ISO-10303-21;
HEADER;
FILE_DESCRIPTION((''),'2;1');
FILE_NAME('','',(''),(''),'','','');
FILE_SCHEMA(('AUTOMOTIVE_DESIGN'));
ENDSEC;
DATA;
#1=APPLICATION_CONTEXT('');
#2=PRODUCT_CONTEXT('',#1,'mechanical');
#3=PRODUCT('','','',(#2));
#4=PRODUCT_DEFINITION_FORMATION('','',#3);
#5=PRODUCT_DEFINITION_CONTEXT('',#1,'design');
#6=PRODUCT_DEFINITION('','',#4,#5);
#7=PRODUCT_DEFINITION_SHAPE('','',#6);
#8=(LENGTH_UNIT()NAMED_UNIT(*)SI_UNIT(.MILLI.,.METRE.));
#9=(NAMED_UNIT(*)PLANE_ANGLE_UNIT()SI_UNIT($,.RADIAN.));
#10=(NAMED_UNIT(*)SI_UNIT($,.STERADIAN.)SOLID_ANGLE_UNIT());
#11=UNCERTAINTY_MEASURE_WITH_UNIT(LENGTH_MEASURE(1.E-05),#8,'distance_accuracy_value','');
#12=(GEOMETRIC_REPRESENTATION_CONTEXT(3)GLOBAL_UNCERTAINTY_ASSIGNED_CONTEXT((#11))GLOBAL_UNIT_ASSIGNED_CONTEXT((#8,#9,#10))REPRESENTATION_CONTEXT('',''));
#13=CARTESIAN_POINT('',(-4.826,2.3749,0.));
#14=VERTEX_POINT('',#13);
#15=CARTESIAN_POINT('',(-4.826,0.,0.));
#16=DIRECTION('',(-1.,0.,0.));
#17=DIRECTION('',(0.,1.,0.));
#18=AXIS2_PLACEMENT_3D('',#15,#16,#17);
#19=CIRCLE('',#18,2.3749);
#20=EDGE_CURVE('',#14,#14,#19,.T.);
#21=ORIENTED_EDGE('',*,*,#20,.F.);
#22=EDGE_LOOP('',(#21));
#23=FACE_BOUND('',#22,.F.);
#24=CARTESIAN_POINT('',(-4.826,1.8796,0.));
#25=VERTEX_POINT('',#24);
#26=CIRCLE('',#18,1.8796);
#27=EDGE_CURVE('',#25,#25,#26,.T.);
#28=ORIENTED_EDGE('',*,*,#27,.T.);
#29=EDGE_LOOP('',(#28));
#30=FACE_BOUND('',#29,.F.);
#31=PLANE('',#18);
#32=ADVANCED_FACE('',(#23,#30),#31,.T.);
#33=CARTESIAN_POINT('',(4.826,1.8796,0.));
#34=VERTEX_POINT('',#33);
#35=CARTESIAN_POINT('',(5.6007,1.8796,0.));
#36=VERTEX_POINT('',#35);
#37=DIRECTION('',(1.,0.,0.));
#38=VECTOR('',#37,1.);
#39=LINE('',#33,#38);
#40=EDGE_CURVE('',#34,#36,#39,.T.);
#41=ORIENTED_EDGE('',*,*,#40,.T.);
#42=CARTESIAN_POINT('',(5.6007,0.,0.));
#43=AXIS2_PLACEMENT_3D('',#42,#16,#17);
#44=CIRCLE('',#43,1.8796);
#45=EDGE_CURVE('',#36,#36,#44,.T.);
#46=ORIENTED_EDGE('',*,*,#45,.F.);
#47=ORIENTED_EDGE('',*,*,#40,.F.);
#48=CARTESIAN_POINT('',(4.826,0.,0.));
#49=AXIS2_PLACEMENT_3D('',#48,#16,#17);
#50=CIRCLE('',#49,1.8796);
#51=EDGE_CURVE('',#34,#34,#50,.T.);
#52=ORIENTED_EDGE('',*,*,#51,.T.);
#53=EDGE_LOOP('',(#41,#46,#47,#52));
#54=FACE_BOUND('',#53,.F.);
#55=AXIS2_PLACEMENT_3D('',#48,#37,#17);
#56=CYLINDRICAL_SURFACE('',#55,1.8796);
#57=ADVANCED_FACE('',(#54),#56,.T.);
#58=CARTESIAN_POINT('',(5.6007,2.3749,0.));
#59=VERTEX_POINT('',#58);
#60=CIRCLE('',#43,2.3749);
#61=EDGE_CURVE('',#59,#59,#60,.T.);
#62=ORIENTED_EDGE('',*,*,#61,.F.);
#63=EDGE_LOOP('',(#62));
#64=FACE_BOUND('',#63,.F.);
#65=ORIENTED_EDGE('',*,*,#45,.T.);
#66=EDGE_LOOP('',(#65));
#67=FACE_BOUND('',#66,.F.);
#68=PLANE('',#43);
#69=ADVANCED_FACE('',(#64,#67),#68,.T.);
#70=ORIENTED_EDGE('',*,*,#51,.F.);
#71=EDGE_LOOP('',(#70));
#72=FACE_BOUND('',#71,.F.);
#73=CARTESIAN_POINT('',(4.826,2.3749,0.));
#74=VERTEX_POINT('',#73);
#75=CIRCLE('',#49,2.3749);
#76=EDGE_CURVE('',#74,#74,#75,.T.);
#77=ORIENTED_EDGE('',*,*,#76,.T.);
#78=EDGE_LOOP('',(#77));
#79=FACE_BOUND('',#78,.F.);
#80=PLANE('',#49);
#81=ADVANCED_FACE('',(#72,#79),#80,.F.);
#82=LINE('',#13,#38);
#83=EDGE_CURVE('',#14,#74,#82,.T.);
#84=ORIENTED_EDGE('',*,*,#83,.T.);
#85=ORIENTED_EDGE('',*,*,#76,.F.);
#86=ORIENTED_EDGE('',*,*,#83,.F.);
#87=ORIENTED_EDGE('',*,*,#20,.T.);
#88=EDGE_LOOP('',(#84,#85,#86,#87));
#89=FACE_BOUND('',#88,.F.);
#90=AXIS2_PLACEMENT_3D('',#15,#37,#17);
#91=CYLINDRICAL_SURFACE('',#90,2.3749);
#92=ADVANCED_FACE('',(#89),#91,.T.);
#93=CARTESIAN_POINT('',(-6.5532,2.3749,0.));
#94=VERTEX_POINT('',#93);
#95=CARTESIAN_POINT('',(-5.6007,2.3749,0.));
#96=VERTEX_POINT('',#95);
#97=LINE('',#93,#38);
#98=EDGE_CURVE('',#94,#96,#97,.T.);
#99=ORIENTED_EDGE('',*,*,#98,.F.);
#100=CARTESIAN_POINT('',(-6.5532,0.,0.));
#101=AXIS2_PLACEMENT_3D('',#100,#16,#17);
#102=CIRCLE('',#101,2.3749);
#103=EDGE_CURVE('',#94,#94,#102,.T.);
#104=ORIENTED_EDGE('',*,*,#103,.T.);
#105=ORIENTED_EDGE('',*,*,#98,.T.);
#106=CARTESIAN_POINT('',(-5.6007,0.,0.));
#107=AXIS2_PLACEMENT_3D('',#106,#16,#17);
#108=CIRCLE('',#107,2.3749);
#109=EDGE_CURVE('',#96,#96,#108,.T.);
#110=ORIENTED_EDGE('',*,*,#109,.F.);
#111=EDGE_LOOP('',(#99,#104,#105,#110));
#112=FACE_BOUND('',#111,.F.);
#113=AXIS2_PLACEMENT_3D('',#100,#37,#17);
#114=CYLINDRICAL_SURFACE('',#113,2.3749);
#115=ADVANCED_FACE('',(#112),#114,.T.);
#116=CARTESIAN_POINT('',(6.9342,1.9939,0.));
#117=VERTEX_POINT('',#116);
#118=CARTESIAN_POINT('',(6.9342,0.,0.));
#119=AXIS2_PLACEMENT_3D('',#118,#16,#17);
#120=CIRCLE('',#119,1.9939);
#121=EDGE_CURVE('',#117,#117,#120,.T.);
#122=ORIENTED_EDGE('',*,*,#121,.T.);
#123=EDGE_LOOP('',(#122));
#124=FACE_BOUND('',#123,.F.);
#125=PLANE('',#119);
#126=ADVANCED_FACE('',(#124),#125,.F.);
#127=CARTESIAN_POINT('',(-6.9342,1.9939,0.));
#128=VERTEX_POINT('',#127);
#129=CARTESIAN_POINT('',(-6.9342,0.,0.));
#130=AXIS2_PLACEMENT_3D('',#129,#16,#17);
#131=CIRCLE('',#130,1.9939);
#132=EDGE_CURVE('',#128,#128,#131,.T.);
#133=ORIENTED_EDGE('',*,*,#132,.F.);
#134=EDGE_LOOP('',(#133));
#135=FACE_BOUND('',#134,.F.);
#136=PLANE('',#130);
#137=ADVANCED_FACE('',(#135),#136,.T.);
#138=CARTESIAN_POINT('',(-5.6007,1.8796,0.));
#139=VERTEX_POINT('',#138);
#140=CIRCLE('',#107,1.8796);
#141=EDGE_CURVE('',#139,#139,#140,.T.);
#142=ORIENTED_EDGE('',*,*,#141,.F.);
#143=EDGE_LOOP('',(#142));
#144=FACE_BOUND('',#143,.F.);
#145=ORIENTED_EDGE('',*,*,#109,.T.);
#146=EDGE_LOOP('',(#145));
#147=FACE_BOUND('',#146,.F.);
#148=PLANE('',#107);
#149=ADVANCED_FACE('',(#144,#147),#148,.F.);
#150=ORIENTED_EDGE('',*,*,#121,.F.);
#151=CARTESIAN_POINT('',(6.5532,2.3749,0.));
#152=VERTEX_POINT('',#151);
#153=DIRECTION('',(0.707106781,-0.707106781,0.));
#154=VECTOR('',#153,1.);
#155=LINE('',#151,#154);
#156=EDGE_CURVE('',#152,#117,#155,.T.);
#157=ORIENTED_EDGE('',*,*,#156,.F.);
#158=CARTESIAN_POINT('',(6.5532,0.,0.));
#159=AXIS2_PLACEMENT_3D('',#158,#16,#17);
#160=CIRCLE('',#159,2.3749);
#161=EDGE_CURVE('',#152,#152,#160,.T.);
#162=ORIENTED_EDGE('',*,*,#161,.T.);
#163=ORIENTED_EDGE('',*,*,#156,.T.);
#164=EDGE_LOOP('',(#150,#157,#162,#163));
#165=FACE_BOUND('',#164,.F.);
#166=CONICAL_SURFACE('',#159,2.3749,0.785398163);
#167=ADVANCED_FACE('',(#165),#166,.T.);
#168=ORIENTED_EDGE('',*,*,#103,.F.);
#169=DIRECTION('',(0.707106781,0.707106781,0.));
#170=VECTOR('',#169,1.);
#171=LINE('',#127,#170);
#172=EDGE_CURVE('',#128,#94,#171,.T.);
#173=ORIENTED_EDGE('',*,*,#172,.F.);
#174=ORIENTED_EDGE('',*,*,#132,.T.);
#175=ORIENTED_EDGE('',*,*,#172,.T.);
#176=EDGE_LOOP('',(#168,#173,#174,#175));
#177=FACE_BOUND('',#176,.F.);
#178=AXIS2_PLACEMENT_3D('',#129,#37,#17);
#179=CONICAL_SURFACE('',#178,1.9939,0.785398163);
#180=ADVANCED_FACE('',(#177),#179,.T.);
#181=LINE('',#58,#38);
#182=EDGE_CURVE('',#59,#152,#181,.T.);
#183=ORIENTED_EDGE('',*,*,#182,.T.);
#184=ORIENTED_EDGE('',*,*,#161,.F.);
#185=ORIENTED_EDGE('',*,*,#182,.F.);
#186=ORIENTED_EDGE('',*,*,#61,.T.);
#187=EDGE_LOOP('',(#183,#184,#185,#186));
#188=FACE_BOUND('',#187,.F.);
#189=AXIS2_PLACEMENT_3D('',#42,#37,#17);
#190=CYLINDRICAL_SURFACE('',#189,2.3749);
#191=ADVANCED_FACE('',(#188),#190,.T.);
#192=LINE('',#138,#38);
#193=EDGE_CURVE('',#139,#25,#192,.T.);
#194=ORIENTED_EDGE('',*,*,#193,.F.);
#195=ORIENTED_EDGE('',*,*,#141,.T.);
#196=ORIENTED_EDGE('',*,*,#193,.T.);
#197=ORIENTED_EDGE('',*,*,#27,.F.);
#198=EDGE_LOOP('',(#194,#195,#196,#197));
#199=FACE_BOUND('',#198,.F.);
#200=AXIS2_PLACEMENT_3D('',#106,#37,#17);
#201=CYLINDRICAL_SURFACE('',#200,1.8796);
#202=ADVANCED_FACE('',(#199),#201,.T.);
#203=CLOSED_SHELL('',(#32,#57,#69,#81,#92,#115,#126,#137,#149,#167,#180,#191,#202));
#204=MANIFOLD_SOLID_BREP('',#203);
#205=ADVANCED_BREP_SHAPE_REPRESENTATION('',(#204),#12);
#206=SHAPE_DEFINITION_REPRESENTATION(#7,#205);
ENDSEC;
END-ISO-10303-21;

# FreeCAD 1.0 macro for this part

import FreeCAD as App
import Part
import Sketcher

V = App.Vector
Q = App.Units.Quantity

doc = App.newDocument("Part")
body = doc.addObject("PartDesign::Body", "Body")

# Sketch on XY plane
sketch1 = body.newObject("Sketcher::SketchObject", "Sketch")
sketch1.AttachmentSupport = (doc.getObject("XY_Plane"), [""])
sketch1.MapMode = "FlatFace"
sketch1.addGeometry([
    Part.LineSegment(V(-6.93, 1.99, 0), V(-6.93, 0, 0)),  # 0
    Part.LineSegment(V(-6.93, 0, 0), V(6.93, 0, 0)),  # 1
    Part.LineSegment(V(6.93, 0, 0), V(6.93, 1.99, 0)),  # 2
    Part.LineSegment(V(6.93, 1.99, 0), V(6.55, 2.37, 0)),  # 3
    Part.LineSegment(V(6.55, 2.37, 0), V(5.6, 2.37, 0)),  # 4
    Part.LineSegment(V(5.6, 2.37, 0), V(5.6, 1.88, 0)),  # 5
    Part.LineSegment(V(5.6, 1.88, 0), V(4.83, 1.88, 0)),  # 6
    Part.LineSegment(V(4.83, 1.88, 0), V(4.83, 2.37, 0)),  # 7
    Part.LineSegment(V(4.83, 2.37, 0), V(-4.83, 2.37, 0)),  # 8
    Part.LineSegment(V(-4.83, 2.37, 0), V(-4.83, 1.88, 0)),  # 9
    Part.LineSegment(V(-4.83, 1.88, 0), V(-5.6, 1.88, 0)),  # 10
    Part.LineSegment(V(-5.6, 1.88, 0), V(-5.6, 2.37, 0)),  # 11
    Part.LineSegment(V(-5.6, 2.37, 0), V(-6.55, 2.37, 0)),  # 12
    Part.LineSegment(V(-6.55, 2.37, 0), V(-6.93, 1.99, 0)),  # 13
], False)
sketch1.addConstraint([
    Sketcher.Constraint("Coincident", 0, 2, 1, 1),
    Sketcher.Constraint("Coincident", 1, 2, 2, 1),
    Sketcher.Constraint("Coincident", 2, 2, 3, 1),
    Sketcher.Constraint("Coincident", 3, 2, 4, 1),
    Sketcher.Constraint("Coincident", 4, 2, 5, 1),
    Sketcher.Constraint("Coincident", 5, 2, 6, 1),
    Sketcher.Constraint("Coincident", 6, 2, 7, 1),
    Sketcher.Constraint("Coincident", 7, 2, 8, 1),
    Sketcher.Constraint("Coincident", 8, 2, 9, 1),
    Sketcher.Constraint("Coincident", 9, 2, 10, 1),
    Sketcher.Constraint("Coincident", 10, 2, 11, 1),
    Sketcher.Constraint("Coincident", 11, 2, 12, 1),
    Sketcher.Constraint("Coincident", 12, 2, 13, 1),
    Sketcher.Constraint("Coincident", 13, 2, 0, 1),
    Sketcher.Constraint("Vertical", 0),
    Sketcher.Constraint("Horizontal", 1),
    Sketcher.Constraint("Vertical", 2),
    Sketcher.Constraint("Horizontal", 4),
    Sketcher.Constraint("Vertical", 5),
    Sketcher.Constraint("Horizontal", 6),
    Sketcher.Constraint("Vertical", 7),
    Sketcher.Constraint("Horizontal", 8),
    Sketcher.Constraint("Vertical", 9),
    Sketcher.Constraint("Horizontal", 10),
    Sketcher.Constraint("Vertical", 11),
    Sketcher.Constraint("Horizontal", 12),
    Sketcher.Constraint("Symmetric", 0, 2, 1, 2, -1, 1),
    Sketcher.Constraint("Symmetric", 6, 2, 9, 2, -2),
    Sketcher.Constraint("Symmetric", 4, 2, 11, 2, -2),
    Sketcher.Constraint("Perpendicular", 3, 13),
    Sketcher.Constraint("Horizontal", 4, 2, 7, 2),
    Sketcher.Constraint("Horizontal", 2, 2, 13, 2),
    Sketcher.Constraint("Equal", 4, 12),
    Sketcher.Constraint("DistanceX", 8, 2, 8, 1, Q("0.38 in")),
    Sketcher.Constraint("DistanceX", 1, 1, 1, 2, Q("0.546 in")),
    Sketcher.Constraint("DistanceX", 4, 2, 4, 1, Q("0.0375 in")),
    Sketcher.Constraint("DistanceX", 6, 2, 6, 1, Q("0.0305 in")),
    Sketcher.Constraint("DistanceY", 0, 2, 0, 1, Q("0.0785 in")),
    Sketcher.Constraint("DistanceY", 5, 2, 5, 1, Q("0.0195 in")),
])
revolution = body.newObject("PartDesign::Revolution", "Revolution")
revolution.Profile = sketch1
revolution.ReferenceAxis = (sketch1, ["H_Axis"])
revolution.Angle = 360

doc.recompute()
